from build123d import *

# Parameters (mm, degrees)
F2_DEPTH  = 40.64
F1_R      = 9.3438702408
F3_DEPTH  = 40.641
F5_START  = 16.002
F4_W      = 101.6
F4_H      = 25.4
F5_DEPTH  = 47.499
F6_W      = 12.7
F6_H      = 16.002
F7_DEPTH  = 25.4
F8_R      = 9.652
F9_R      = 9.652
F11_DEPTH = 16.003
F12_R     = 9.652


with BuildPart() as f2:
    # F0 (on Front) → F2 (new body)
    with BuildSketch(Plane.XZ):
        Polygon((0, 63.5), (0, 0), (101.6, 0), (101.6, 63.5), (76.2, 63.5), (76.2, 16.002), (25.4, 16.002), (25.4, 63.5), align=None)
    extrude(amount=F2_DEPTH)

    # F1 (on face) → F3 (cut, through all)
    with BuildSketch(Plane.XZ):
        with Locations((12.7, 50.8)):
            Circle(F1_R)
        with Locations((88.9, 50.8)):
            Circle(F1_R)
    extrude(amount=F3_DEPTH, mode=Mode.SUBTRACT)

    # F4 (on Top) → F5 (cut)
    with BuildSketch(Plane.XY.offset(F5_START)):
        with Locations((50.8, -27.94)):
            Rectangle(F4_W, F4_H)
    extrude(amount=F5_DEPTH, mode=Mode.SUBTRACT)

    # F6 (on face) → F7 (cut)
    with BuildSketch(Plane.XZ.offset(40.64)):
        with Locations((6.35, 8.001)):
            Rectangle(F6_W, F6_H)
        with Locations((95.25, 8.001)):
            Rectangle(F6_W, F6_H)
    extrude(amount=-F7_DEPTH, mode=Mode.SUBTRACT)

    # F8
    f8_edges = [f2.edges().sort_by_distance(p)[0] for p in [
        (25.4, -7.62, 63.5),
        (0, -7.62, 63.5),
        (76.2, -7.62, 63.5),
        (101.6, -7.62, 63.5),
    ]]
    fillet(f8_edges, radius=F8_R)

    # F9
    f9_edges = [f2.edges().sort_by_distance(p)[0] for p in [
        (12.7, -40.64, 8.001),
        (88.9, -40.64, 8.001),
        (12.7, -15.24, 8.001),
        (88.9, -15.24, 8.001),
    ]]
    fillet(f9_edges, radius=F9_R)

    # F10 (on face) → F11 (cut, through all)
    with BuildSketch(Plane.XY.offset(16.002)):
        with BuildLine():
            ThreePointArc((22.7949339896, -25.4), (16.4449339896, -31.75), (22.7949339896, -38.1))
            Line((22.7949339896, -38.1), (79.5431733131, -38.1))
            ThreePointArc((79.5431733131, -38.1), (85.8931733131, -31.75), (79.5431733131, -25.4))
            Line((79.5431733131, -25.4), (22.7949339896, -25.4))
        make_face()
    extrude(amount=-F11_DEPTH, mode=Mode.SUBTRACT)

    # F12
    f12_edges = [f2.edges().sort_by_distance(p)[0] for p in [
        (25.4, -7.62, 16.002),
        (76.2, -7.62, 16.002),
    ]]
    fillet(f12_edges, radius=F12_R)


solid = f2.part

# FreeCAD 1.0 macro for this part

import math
import FreeCAD as App
import Part
import Sketcher
Q = App.Units.Quantity


def edges_at(feature, points):
    """Names of the edges that pass closest to the given points."""
    edges = feature.Shape.Edges
    near = lambda p: min(range(len(edges)), key=lambda i: edges[i].distToShape(Part.Vertex(*p))[0])
    return sorted({f"Edge{near(p) + 1}" for p in points})

doc = App.newDocument("Part")
body = doc.addObject("PartDesign::Body", "Body")

# Sketch on XZ plane
sketch1 = body.newObject("Sketcher::SketchObject", "Sketch")
sketch1.AttachmentSupport = (doc.getObject("XZ_Plane"), [""])
sketch1.MapMode = "FlatFace"
sketch1.addGeometry([
    Part.LineSegment(App.Vector(0, 64, 0), App.Vector(0, 0, 0)),  # 0
    Part.LineSegment(App.Vector(0, 0, 0), App.Vector(102, 0, 0)),  # 1
    Part.LineSegment(App.Vector(102, 0, 0), App.Vector(102, 64, 0)),  # 2
    Part.LineSegment(App.Vector(102, 64, 0), App.Vector(76, 64, 0)),  # 3
    Part.LineSegment(App.Vector(76, 64, 0), App.Vector(76, 16, 0)),  # 4
    Part.LineSegment(App.Vector(76, 16, 0), App.Vector(25, 16, 0)),  # 5
    Part.LineSegment(App.Vector(25, 16, 0), App.Vector(25, 64, 0)),  # 6
    Part.LineSegment(App.Vector(25, 64, 0), App.Vector(0, 64, 0)),  # 7
], False)
sketch1.addConstraint([
    Sketcher.Constraint("Coincident", 0, 2, 1, 1),
    Sketcher.Constraint("Coincident", 1, 2, 2, 1),
    Sketcher.Constraint("Coincident", 2, 2, 3, 1),
    Sketcher.Constraint("Coincident", 3, 2, 4, 1),
    Sketcher.Constraint("Coincident", 4, 2, 5, 1),
    Sketcher.Constraint("Coincident", 5, 2, 6, 1),
    Sketcher.Constraint("Coincident", 6, 2, 7, 1),
    Sketcher.Constraint("Coincident", 7, 2, 0, 1),
    Sketcher.Constraint("Vertical", 0),
    Sketcher.Constraint("Horizontal", 1),
    Sketcher.Constraint("Vertical", 2),
    Sketcher.Constraint("Horizontal", 3),
    Sketcher.Constraint("Vertical", 4),
    Sketcher.Constraint("Horizontal", 5),
    Sketcher.Constraint("Vertical", 6),
    Sketcher.Constraint("Horizontal", 7),
    Sketcher.Constraint("Coincident", 0, 2, -1, 1),
    Sketcher.Constraint("Horizontal", 3, 2, 6, 2),
    Sketcher.Constraint("Equal", 3, 7),
    Sketcher.Constraint("DistanceX", 1, 1, 1, 2, Q("4 in")),
    Sketcher.Constraint("DistanceX", 3, 2, 3, 1, Q("1 in")),
    Sketcher.Constraint("DistanceY", 0, 2, 0, 1, Q("2.5 in")),
    Sketcher.Constraint("DistanceY", 4, 2, 4, 1, Q("1.87 in")),
])
pad1 = body.newObject("PartDesign::Pad", "Pad")
pad1.Profile = sketch1
pad1.Length = Q("1.6 in")

# Sketch on XZ plane
sketch2 = body.newObject("Sketcher::SketchObject", "Sketch001")
sketch2.AttachmentSupport = (doc.getObject("XZ_Plane"), [""])
sketch2.MapMode = "FlatFace"
sketch2.addGeometry([
    Part.Circle(App.Vector(13, 51, 0), App.Vector(0, 0, 1), 9),
    Part.Circle(App.Vector(89, 51, 0), App.Vector(0, 0, 1), 9),
], False)
sketch2.addConstraint([
    Sketcher.Constraint("Equal", 0, 1),
    Sketcher.Constraint("Horizontal", 0, 3, 1, 3),
    Sketcher.Constraint("DistanceY", -1, 1, 0, 3, Q("2 in")),
    Sketcher.Constraint("DistanceX", 0, 3, 1, 3, Q("3 in")),
    Sketcher.Constraint("DistanceX", -1, 1, 0, 3, Q("0.5 in")),
    Sketcher.Constraint("Diameter", 0, Q("18.68774 mm")),
])
pocket1 = body.newObject("PartDesign::Pocket", "Pocket")
pocket1.Profile = sketch2
pocket1.Type = "ThroughAll"
pocket1.Reversed = True

# Sketch on XY plane
sketch3 = body.newObject("Sketcher::SketchObject", "Sketch002")
sketch3.AttachmentSupport = (doc.getObject("XY_Plane"), [""])
sketch3.MapMode = "FlatFace"
sketch3.AttachmentOffset = App.Placement(App.Vector(0, 0, 0.63 * 25.4), App.Rotation())
sketch3.addGeometry([
    Part.LineSegment(App.Vector(0, -15, 0), App.Vector(0, -41, 0)),
    Part.LineSegment(App.Vector(0, -41, 0), App.Vector(102, -41, 0)),
    Part.LineSegment(App.Vector(102, -41, 0), App.Vector(102, -15, 0)),
    Part.LineSegment(App.Vector(102, -15, 0), App.Vector(0, -15, 0)),
], False)
sketch3.addConstraint([
    Sketcher.Constraint("Coincident", 0, 2, 1, 1),
    Sketcher.Constraint("Coincident", 1, 2, 2, 1),
    Sketcher.Constraint("Coincident", 2, 2, 3, 1),
    Sketcher.Constraint("Coincident", 3, 2, 0, 1),
    Sketcher.Constraint("Vertical", 0),
    Sketcher.Constraint("Horizontal", 1),
    Sketcher.Constraint("Vertical", 2),
    Sketcher.Constraint("Horizontal", 3),
    Sketcher.Constraint("PointOnObject", 0, 2, -2),
    Sketcher.Constraint("DistanceX", 1, 1, 1, 2, Q("4 in")),
    Sketcher.Constraint("DistanceY", 0, 2, 0, 1, Q("1 in")),
    Sketcher.Constraint("DistanceY", 0, 2, -1, 1, Q("1.6 in")),
])
pocket2 = body.newObject("PartDesign::Pocket", "Pocket001")
pocket2.Profile = sketch3
pocket2.Length = 47.499
pocket2.Reversed = True

# Sketch on XZ plane
sketch4 = body.newObject("Sketcher::SketchObject", "Sketch003")
sketch4.AttachmentSupport = (doc.getObject("XZ_Plane"), [""])
sketch4.MapMode = "FlatFace"
sketch4.AttachmentOffset = App.Placement(App.Vector(0, 0, 1.6 * 25.4), App.Rotation())
sketch4.addGeometry([
    Part.LineSegment(App.Vector(0, 16, 0), App.Vector(0, 0, 0)),  # 0
    Part.LineSegment(App.Vector(0, 0, 0), App.Vector(13, 0, 0)),  # 1
    Part.LineSegment(App.Vector(13, 0, 0), App.Vector(13, 16, 0)),  # 2
    Part.LineSegment(App.Vector(13, 16, 0), App.Vector(0, 16, 0)),  # 3
    Part.LineSegment(App.Vector(89, 16, 0), App.Vector(89, 0, 0)),  # 4
    Part.LineSegment(App.Vector(89, 0, 0), App.Vector(102, 0, 0)),  # 5
    Part.LineSegment(App.Vector(102, 0, 0), App.Vector(102, 16, 0)),  # 6
    Part.LineSegment(App.Vector(102, 16, 0), App.Vector(89, 16, 0)),  # 7
], False)
sketch4.addConstraint([
    Sketcher.Constraint("Coincident", 0, 2, 1, 1),
    Sketcher.Constraint("Coincident", 1, 2, 2, 1),
    Sketcher.Constraint("Coincident", 2, 2, 3, 1),
    Sketcher.Constraint("Coincident", 3, 2, 0, 1),
    Sketcher.Constraint("Coincident", 4, 2, 5, 1),
    Sketcher.Constraint("Coincident", 5, 2, 6, 1),
    Sketcher.Constraint("Coincident", 6, 2, 7, 1),
    Sketcher.Constraint("Coincident", 7, 2, 4, 1),
    Sketcher.Constraint("Vertical", 0),
    Sketcher.Constraint("Horizontal", 1),
    Sketcher.Constraint("Vertical", 2),
    Sketcher.Constraint("Horizontal", 3),
    Sketcher.Constraint("Vertical", 4),
    Sketcher.Constraint("Horizontal", 5),
    Sketcher.Constraint("Vertical", 6),
    Sketcher.Constraint("Horizontal", 7),
    Sketcher.Constraint("Coincident", 0, 2, -1, 1),
    Sketcher.Constraint("PointOnObject", 4, 2, -1),
    Sketcher.Constraint("Horizontal", 3, 2, 6, 2),
    Sketcher.Constraint("Equal", 3, 5),
    Sketcher.Constraint("DistanceX", 1, 1, 1, 2, Q("0.5 in")),
    Sketcher.Constraint("DistanceX", -1, 1, 5, 2, Q("4 in")),
    Sketcher.Constraint("DistanceY", 0, 2, 0, 1, Q("0.63 in")),
])
pocket3 = body.newObject("PartDesign::Pocket", "Pocket002")
pocket3.Profile = sketch4
pocket3.Length = Q("1 in")
doc.recompute()

fillet = body.newObject("PartDesign::Fillet", "Fillet")
fillet.Base = (pocket3, edges_at(pocket3, [
    (25.4, -7.62, 63.5),
    (0, -7.62, 63.5),
    (76.2, -7.62, 63.5),
    (101.6, -7.62, 63.5),
]))
fillet.Radius = Q("0.38 in")
doc.recompute()

fillet2 = body.newObject("PartDesign::Fillet", "Fillet001")
fillet2.Base = (fillet, edges_at(fillet, [
    (12.7, -40.64, 8.001),
    (88.9, -40.64, 8.001),
    (12.7, -15.24, 8.001),
    (88.9, -15.24, 8.001),
]))
fillet2.Radius = Q("0.38 in")

# Sketch on XY plane
sketch5 = body.newObject("Sketcher::SketchObject", "Sketch004")
sketch5.AttachmentSupport = (doc.getObject("XY_Plane"), [""])
sketch5.MapMode = "FlatFace"
sketch5.AttachmentOffset = App.Placement(App.Vector(0, 0, 0.63 * 25.4), App.Rotation())
sketch5.addGeometry([
    Part.ArcOfCircle(Part.Circle(App.Vector(23, -32, 0), App.Vector(0, 0, 1), 6), math.radians(90), math.radians(270)),
    Part.LineSegment(App.Vector(23, -38, 0), App.Vector(80, -38, 0)),
    Part.ArcOfCircle(Part.Circle(App.Vector(80, -32, 0), App.Vector(0, 0, 1), 6), math.radians(-90), math.radians(90)),
    Part.LineSegment(App.Vector(80, -25, 0), App.Vector(23, -25, 0)),
], False)
sketch5.addConstraint([
    Sketcher.Constraint("Tangent", 0, 2, 1, 1),
    Sketcher.Constraint("Tangent", 1, 2, 2, 1),
    Sketcher.Constraint("Tangent", 2, 2, 3, 1),
    Sketcher.Constraint("Tangent", 3, 2, 0, 1),
    Sketcher.Constraint("Horizontal", 1),
    Sketcher.Constraint("Horizontal", 3),
    Sketcher.Constraint("Radius", 0, Q("0.25 in")),
    Sketcher.Constraint("DistanceY", 2, 2, -1, 1, Q("1 in")),
    Sketcher.Constraint("DistanceX", 1, 1, 1, 2, Q("56.748239 mm")),
    Sketcher.Constraint("DistanceX", -1, 1, 0, 3, Q("22.794934 mm")),
])
pocket4 = body.newObject("PartDesign::Pocket", "Pocket003")
pocket4.Profile = sketch5
pocket4.Type = "ThroughAll"
doc.recompute()

fillet3 = body.newObject("PartDesign::Fillet", "Fillet002")
fillet3.Base = (pocket4, edges_at(pocket4, [(25.4, -7.62, 16.002), (76.2, -7.62, 16.002)]))
fillet3.Radius = Q("0.38 in")

doc.recompute()
